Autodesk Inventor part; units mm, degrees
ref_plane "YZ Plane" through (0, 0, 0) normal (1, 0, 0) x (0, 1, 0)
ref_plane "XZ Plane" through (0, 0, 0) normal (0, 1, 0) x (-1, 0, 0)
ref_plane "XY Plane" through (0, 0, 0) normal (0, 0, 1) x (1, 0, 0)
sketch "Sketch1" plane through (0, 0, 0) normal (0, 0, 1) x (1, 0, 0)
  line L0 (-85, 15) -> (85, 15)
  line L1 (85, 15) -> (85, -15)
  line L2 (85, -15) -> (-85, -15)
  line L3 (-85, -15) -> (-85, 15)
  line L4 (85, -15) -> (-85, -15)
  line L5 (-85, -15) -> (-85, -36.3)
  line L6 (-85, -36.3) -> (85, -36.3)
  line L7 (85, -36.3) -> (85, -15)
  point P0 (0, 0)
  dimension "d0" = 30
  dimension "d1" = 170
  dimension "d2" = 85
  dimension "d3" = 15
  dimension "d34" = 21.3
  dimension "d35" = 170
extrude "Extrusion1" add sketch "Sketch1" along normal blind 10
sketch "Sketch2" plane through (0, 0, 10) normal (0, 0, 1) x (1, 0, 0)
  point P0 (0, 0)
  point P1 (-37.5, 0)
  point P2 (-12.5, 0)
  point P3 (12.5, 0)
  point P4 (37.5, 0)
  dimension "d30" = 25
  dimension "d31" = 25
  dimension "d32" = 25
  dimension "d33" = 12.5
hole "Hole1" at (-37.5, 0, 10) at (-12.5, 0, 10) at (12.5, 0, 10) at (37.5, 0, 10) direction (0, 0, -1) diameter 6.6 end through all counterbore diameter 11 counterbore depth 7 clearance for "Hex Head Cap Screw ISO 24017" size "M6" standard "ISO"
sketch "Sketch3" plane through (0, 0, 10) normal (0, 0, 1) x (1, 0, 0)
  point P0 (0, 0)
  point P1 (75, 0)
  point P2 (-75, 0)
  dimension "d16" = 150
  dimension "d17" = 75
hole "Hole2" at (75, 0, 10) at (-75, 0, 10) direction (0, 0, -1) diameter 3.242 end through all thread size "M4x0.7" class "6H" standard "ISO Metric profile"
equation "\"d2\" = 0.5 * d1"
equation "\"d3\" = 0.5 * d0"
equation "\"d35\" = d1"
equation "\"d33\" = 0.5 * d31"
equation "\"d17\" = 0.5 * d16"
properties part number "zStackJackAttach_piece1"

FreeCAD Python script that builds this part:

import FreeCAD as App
import Part
import Sketcher
from FreeCAD import Vector

doc = App.newDocument("Part")
body = doc.addObject("PartDesign::Body", "Body")

sketch1 = body.newObject("Sketcher::SketchObject", "Sketch")
sketch1.AttachmentSupport = (doc.getObject("XY_Plane"), [""])
sketch1.MapMode = "FlatFace"
sketch1.addGeometry([
    Part.LineSegment(Vector(85, 15, 0), Vector(-85, 15, 0)),
    Part.LineSegment(Vector(-85, 15, 0), Vector(-85, -36, 0)),
    Part.LineSegment(Vector(-85, -36, 0), Vector(85, -36, 0)),
    Part.LineSegment(Vector(85, -36, 0), Vector(85, 15, 0)),
], False)
sketch1.addConstraint([
    Sketcher.Constraint("Coincident", 0, 2, 1, 1),
    Sketcher.Constraint("Coincident", 1, 2, 2, 1),
    Sketcher.Constraint("Coincident", 2, 2, 3, 1),
    Sketcher.Constraint("Coincident", 3, 2, 0, 1),
    Sketcher.Constraint("Horizontal", 0),
    Sketcher.Constraint("Vertical", 1),
    Sketcher.Constraint("Horizontal", 2),
    Sketcher.Constraint("Vertical", 3),
    Sketcher.Constraint("DistanceX", 0, 2, 0, 1, 170.0),
    Sketcher.Constraint("DistanceX", 0, 2, -1, 1, 85.0),
    Sketcher.Constraint("DistanceY", -1, 1, 0, 2, 15.0),
    Sketcher.Constraint("DistanceY", 1, 2, 1, 1, 51.3),
])
pad1 = body.newObject("PartDesign::Pad", "Pad")
pad1.Profile = sketch1
pad1.Length = 10

sketch2 = body.newObject("Sketcher::SketchObject", "Sketch001")
sketch2.AttachmentSupport = (doc.getObject("XY_Plane"), [""])
sketch2.MapMode = "FlatFace"
sketch2.AttachmentOffset = App.Placement(Vector(0, 0, 10), App.Rotation())
sketch2.addGeometry([
    Part.Circle(Vector(-37.5, 0, 0), Vector(0, 0, 1), 3.3),
    Part.Circle(Vector(-12.5, 0, 0), Vector(0, 0, 1), 3.3),
    Part.Circle(Vector(12.5, 0, 0), Vector(0, 0, 1), 3.3),
    Part.Circle(Vector(37.5, 0, 0), Vector(0, 0, 1), 3.3),
], False)
sketch2.addConstraint([
    Sketcher.Constraint("Equal", 0, 1),
    Sketcher.Constraint("Equal", 1, 2),
    Sketcher.Constraint("Equal", 2, 3),
    Sketcher.Constraint("Symmetric", 1, 3, 2, 3, -1, 1),
    Sketcher.Constraint("Symmetric", 0, 3, 3, 3, -1, 1),
    Sketcher.Constraint("PointOnObject", 0, 3, -1),
    Sketcher.Constraint("PointOnObject", 1, 3, -1),
    Sketcher.Constraint("Diameter", 0, 6.6),
    Sketcher.Constraint("DistanceX", 0, 3, 1, 3, 25.0),
    Sketcher.Constraint("DistanceX", 1, 3, 2, 3, 25.0),
])
doc.recompute()
hole = body.newObject("PartDesign::Hole", "Hole")
hole.Profile = sketch2
hole.ThreadType = "None"
hole.Diameter = 6.6
hole.DepthType = "ThroughAll"
hole.HoleCutType = "Counterbore"
hole.HoleCutDiameter = 11
hole.HoleCutDepth = 7

sketch3 = body.newObject("Sketcher::SketchObject", "Sketch002")
sketch3.AttachmentSupport = (doc.getObject("XY_Plane"), [""])
sketch3.MapMode = "FlatFace"
sketch3.AttachmentOffset = App.Placement(Vector(0, 0, 10), App.Rotation())
sketch3.addGeometry([
    Part.Circle(Vector(75, 0, 0), Vector(0, 0, 1), 1.6),
    Part.Circle(Vector(-75, 0, 0), Vector(0, 0, 1), 1.6),
], False)
sketch3.addConstraint([
    Sketcher.Constraint("Equal", 0, 1),
    Sketcher.Constraint("Symmetric", 0, 3, 1, 3, -1, 1),
    Sketcher.Constraint("PointOnObject", 0, 3, -1),
    Sketcher.Constraint("Diameter", 0, 3.242),
    Sketcher.Constraint("DistanceX", -1, 1, 0, 3, 75.0),
])
doc.recompute()
hole2 = body.newObject("PartDesign::Hole", "Hole001")
hole2.Profile = sketch3
hole2.ThreadType = "None"
hole2.Diameter = 3.242
hole2.DepthType = "ThroughAll"

doc.recompute()
